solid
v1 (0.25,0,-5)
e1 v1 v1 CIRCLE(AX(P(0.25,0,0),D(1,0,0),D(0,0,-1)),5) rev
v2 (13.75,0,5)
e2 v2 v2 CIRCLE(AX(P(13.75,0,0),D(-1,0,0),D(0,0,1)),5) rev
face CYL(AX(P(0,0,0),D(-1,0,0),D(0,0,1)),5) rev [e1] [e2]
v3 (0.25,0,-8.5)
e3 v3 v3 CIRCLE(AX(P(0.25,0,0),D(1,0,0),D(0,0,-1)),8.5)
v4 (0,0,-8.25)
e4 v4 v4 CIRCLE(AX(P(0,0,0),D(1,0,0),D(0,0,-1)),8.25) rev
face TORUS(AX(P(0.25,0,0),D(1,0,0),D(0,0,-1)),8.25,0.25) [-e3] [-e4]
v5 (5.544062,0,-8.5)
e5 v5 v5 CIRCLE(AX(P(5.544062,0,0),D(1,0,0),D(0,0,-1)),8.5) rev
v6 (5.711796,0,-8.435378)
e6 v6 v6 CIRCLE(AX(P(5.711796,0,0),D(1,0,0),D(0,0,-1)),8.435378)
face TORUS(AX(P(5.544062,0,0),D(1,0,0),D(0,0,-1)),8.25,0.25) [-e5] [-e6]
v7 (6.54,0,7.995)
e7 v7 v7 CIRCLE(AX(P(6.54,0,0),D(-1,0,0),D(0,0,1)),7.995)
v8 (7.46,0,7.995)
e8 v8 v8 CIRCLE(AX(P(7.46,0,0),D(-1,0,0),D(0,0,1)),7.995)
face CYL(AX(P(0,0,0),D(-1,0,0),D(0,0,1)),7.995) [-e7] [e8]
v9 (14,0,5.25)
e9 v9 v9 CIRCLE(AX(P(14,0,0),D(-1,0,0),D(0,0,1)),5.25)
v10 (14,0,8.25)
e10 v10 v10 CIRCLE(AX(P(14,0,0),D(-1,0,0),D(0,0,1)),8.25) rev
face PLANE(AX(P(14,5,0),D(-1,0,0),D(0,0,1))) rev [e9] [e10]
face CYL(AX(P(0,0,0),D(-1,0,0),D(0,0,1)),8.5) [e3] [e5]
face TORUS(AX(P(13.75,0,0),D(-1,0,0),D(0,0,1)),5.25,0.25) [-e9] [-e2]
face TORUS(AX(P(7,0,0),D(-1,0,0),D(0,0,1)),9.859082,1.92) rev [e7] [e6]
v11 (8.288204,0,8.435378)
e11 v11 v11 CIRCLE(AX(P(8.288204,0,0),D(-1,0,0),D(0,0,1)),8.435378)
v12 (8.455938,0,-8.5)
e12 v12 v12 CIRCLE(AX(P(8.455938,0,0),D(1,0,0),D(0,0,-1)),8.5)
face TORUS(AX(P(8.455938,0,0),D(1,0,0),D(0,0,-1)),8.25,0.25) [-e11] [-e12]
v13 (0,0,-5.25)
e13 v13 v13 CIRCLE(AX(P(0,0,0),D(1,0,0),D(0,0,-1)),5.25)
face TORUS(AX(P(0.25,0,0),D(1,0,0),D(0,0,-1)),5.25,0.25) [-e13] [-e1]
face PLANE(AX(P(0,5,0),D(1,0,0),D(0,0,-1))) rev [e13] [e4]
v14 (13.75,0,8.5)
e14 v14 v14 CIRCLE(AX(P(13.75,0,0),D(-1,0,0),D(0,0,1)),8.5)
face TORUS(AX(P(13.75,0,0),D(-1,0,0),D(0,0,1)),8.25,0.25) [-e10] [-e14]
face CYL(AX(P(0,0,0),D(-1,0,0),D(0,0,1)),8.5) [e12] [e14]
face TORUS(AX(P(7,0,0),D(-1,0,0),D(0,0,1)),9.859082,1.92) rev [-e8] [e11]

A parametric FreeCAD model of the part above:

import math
import FreeCAD as App
import Part
import Sketcher

V = App.Vector
Q = App.Units.Quantity


def edges_at(feature, points):
    """Names of the edges that pass closest to the given points."""
    edges = feature.Shape.Edges
    near = lambda p: min(range(len(edges)), key=lambda i: edges[i].distToShape(Part.Vertex(*p))[0])
    return sorted({f"Edge{near(p) + 1}" for p in points})

doc = App.newDocument("Part")
body = doc.addObject("PartDesign::Body", "Body")

# Sketch on XY plane
sketch1 = body.newObject("Sketcher::SketchObject", "Sketch")
sketch1.AttachmentSupport = (doc.getObject("XY_Plane"), [""])
sketch1.MapMode = "FlatFace"
sketch1.addGeometry([
    Part.LineSegment(V(0, 5, 0), V(14, 5, 0)),  # 0
    Part.LineSegment(V(14, 5, 0), V(14, 8.5, 0)),  # 1
    Part.LineSegment(V(14, 8.5, 0), V(8.4, 8.5, 0)),  # 2
    Part.ArcOfCircle(Part.Circle(V(7, 9.9, 0), V(0, 0, 1), 1.9), math.radians(-76), math.radians(-45)),  # 3
    Part.LineSegment(V(7.5, 8, 0), V(6.5, 8, 0)),  # 4
    Part.ArcOfCircle(Part.Circle(V(7, 9.9, 0), V(0, 0, 1), 1.9), math.radians(-135), math.radians(-104)),  # 5
    Part.LineSegment(V(5.6, 8.5, 0), V(0, 8.5, 0)),  # 6
    Part.LineSegment(V(0, 8.5, 0), V(0, 5, 0)),  # 7
], False)
sketch1.addConstraint([
    Sketcher.Constraint("Coincident", 0, 2, 1, 1),
    Sketcher.Constraint("Coincident", 1, 2, 2, 1),
    Sketcher.Constraint("Coincident", 2, 2, 3, 2),
    Sketcher.Constraint("Coincident", 3, 1, 4, 1),
    Sketcher.Constraint("Coincident", 4, 2, 5, 2),
    Sketcher.Constraint("Coincident", 5, 1, 6, 1),
    Sketcher.Constraint("Coincident", 6, 2, 7, 1),
    Sketcher.Constraint("Coincident", 7, 2, 0, 1),
    Sketcher.Constraint("Horizontal", 0),
    Sketcher.Constraint("Vertical", 1),
    Sketcher.Constraint("Horizontal", 2),
    Sketcher.Constraint("Horizontal", 4),
    Sketcher.Constraint("Horizontal", 6),
    Sketcher.Constraint("Vertical", 7),
    Sketcher.Constraint("Coincident", 5, 3, 3, 3),
    Sketcher.Constraint("Equal", 3, 5),
    Sketcher.Constraint("PointOnObject", 6, 2, -2),
    Sketcher.Constraint("Horizontal", 2, 2, 5, 1),
    Sketcher.Constraint("Equal", 2, 6),
    Sketcher.Constraint("DistanceX", 0, 1, 0, 2, Q("14 mm")),
    Sketcher.Constraint("Radius", 3, Q("1.92 mm")),
    Sketcher.Constraint("DistanceY", 1, 1, 1, 2, Q("3.5 mm")),
    Sketcher.Constraint("DistanceY", -1, 1, 0, 2, Q("5 mm")),
    Sketcher.Constraint("DistanceX", 4, 2, 4, 1, Q("0.92 mm")),
    Sketcher.Constraint("DistanceY", -1, 1, 3, 1, Q("7.995 mm")),
])
revolution = body.newObject("PartDesign::Revolution", "Revolution")
revolution.Profile = sketch1
revolution.ReferenceAxis = (sketch1, ["H_Axis"])
revolution.Angle = 360
doc.recompute()

fillet = body.newObject("PartDesign::Fillet", "Fillet")
fillet.Base = (revolution, edges_at(revolution, [
    (0, 0, -8.5),
    (5.644, 0, -8.5),
    (8.356, 0, -8.5),
    (14, 0, -8.5),
    (14, 0, -5),
    (0, 0, -5),
]))
fillet.Radius = 0.25

doc.recompute()
